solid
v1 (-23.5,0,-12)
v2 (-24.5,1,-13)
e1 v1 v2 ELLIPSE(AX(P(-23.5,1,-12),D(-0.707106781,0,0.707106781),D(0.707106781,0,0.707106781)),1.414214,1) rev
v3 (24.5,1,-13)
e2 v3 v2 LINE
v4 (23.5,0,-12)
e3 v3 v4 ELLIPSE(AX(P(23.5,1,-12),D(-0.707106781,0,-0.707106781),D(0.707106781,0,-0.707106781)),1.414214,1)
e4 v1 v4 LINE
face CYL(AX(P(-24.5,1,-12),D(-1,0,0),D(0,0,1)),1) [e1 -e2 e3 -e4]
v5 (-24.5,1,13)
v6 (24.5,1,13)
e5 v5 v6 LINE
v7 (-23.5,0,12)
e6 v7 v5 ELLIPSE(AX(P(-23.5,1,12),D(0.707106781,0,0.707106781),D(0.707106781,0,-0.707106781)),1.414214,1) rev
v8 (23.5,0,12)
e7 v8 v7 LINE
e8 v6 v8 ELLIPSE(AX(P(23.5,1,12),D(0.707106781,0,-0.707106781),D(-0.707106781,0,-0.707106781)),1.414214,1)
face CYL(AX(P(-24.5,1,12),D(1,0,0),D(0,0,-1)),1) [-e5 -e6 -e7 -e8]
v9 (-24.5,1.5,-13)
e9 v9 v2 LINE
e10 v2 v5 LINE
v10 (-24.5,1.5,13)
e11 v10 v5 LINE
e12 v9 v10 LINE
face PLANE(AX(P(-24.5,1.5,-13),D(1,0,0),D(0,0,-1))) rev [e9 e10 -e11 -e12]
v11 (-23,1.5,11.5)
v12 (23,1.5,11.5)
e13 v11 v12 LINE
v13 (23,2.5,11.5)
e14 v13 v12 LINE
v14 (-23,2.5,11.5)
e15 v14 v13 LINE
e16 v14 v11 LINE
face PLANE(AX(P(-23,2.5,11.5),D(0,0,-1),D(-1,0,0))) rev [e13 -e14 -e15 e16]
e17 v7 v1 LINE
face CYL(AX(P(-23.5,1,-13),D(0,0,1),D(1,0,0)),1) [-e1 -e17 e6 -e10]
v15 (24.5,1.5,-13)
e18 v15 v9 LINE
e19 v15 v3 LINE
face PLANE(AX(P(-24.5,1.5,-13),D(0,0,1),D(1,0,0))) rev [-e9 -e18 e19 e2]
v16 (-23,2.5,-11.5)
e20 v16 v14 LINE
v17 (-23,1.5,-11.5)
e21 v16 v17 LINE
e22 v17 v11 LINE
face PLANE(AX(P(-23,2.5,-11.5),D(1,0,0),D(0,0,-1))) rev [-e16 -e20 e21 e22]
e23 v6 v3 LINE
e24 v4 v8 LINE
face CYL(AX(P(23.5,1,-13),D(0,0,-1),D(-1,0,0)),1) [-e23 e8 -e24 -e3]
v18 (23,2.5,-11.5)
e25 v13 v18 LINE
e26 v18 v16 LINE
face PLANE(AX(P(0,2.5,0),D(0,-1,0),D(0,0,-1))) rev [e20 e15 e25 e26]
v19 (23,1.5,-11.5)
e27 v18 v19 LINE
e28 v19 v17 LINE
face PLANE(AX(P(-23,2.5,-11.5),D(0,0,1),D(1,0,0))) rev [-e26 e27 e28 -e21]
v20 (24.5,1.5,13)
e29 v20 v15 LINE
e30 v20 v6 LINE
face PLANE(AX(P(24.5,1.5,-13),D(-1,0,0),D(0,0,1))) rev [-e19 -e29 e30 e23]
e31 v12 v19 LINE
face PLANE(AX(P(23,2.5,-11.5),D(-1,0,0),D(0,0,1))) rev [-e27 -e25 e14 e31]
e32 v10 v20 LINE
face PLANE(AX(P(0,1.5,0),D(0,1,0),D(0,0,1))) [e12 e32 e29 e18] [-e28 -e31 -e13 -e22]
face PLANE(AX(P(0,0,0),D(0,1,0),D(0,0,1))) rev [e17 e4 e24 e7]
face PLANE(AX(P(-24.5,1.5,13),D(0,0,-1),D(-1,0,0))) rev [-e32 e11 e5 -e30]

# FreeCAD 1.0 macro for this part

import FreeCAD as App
import Part
import Sketcher

V = App.Vector


def edges_at(feature, points):
    """Names of the edges that pass closest to the given points."""
    edges = feature.Shape.Edges
    near = lambda p: min(range(len(edges)), key=lambda i: edges[i].distToShape(Part.Vertex(*p))[0])
    return sorted({f"Edge{near(p) + 1}" for p in points})


def add_polygon(sketch, points):
    """Adds a closed chain of lines whose ends are joined by coincident constraints."""
    first, n = sketch.GeometryCount, len(points)
    for a, b in zip(points, points[1:] + points[:1]):
        sketch.addGeometry(Part.LineSegment(App.Vector(*a, 0), App.Vector(*b, 0)), False)
    for i in range(n):
        sketch.addConstraint(Sketcher.Constraint("Coincident", first + i, 2, first + (i + 1) % n, 1))

doc = App.newDocument("Part")
body = doc.addObject("PartDesign::Body", "Body")

# Sketch on XZ plane
sketch1 = doc.addObject("Sketcher::SketchObject", "Sketch")
body.addObject(sketch1)
sketch1.AttachmentSupport = (doc.XZ_Plane, [""])
sketch1.MapMode = "FlatFace"
add_polygon(sketch1, [(-24, -13), (-24, 13), (24, 13), (24, -13)])  # lines 0-3
sketch1.addConstraint([
    Sketcher.Constraint("Vertical", 0),
    Sketcher.Constraint("Horizontal", 1),
    Sketcher.Constraint("Vertical", 2),
    Sketcher.Constraint("Horizontal", 3),
    Sketcher.Constraint("Symmetric", 0, 2, 2, 2, -1, 1),
    Sketcher.Constraint("DistanceX", 1, 1, 1, 2, 49.0),
    Sketcher.Constraint("DistanceY", 0, 1, 0, 2, 26.0),
])
pad1 = doc.addObject("PartDesign::Pad", "Pad")
body.addObject(pad1)
pad1.Profile = sketch1
pad1.Length = 1.5
pad1.Reversed = True

# Sketch on XZ plane
sketch2 = doc.addObject("Sketcher::SketchObject", "Sketch001")
body.addObject(sketch2)
sketch2.AttachmentSupport = (doc.XZ_Plane, [""])
sketch2.MapMode = "FlatFace"
sketch2.AttachmentOffset = App.Placement(V(0, 0, -1.5), App.Rotation())
add_polygon(sketch2, [(-23, -12), (-23, 12), (23, 12), (23, -12)])  # lines 0-3
sketch2.addConstraint([
    Sketcher.Constraint("Vertical", 0),
    Sketcher.Constraint("Horizontal", 1),
    Sketcher.Constraint("Vertical", 2),
    Sketcher.Constraint("Horizontal", 3),
    Sketcher.Constraint("Symmetric", 0, 2, 2, 2, -1, 1),
    Sketcher.Constraint("DistanceX", 1, 1, 1, 2, 46.0),
    Sketcher.Constraint("DistanceY", 0, 1, 0, 2, 23.0),
])
pad2 = doc.addObject("PartDesign::Pad", "Pad001")
body.addObject(pad2)
pad2.Profile = sketch2
pad2.Length = 1
pad2.Reversed = True
doc.recompute()

fillet = doc.addObject("PartDesign::Fillet", "Fillet")
body.addObject(fillet)
fillet.Base = (pad2, edges_at(pad2, [
    (0, 0, 13),
    (-24.5, 0, 0),
    (0, 0, -13),
    (24.5, 0, 0),
]))
fillet.Radius = 1

doc.recompute()
